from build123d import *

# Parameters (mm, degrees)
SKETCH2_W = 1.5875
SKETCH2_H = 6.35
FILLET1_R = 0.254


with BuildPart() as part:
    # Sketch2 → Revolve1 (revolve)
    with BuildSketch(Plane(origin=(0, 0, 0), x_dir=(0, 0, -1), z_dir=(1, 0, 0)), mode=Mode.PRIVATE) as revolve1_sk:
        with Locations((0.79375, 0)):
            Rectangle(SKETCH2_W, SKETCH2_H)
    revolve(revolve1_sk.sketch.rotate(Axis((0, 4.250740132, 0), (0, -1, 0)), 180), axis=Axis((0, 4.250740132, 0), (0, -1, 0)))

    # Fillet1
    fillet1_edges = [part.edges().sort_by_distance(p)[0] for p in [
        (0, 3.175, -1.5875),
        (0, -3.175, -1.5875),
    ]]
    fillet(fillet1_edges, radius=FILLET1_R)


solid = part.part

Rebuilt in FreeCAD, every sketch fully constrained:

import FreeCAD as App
import Part
import Sketcher
from FreeCAD import Vector
Q = App.Units.Quantity


def edges_at(feature, points):
    """Names of the edges that pass closest to the given points."""
    edges = feature.Shape.Edges
    near = lambda p: min(range(len(edges)), key=lambda i: edges[i].distToShape(Part.Vertex(*p))[0])
    return sorted({f"Edge{near(p) + 1}" for p in points})


def add_polygon(sketch, points):
    """Adds a closed chain of lines whose ends are joined by coincident constraints."""
    first, n = sketch.GeometryCount, len(points)
    for a, b in zip(points, points[1:] + points[:1]):
        sketch.addGeometry(Part.LineSegment(App.Vector(*a, 0), App.Vector(*b, 0)), False)
    for i in range(n):
        sketch.addConstraint(Sketcher.Constraint("Coincident", first + i, 2, first + (i + 1) % n, 1))

doc = App.newDocument("Part")
body = doc.addObject("PartDesign::Body", "Body")

# Sketch on YZ plane
sketch1 = doc.addObject("Sketcher::SketchObject", "Sketch")
body.addObject(sketch1)
sketch1.AttachmentSupport = (doc.YZ_Plane, [""])
sketch1.MapMode = "FlatFace"
add_polygon(sketch1, [(3.2, 0), (-3.2, 0), (-3.2, -1.6), (3.2, -1.6)])  # lines 0-3
sketch1.addConstraint(Sketcher.Constraint("Horizontal", 0))
sketch1.addConstraint(Sketcher.Constraint("Vertical", 1))
sketch1.addConstraint(Sketcher.Constraint("Horizontal", 2))
sketch1.addConstraint(Sketcher.Constraint("Vertical", 3))
sketch1.addConstraint(Sketcher.Constraint("Symmetric", 0, 2, 3, 2, -1, 1))
sketch1.addConstraint(Sketcher.Constraint("DistanceX", 0, 2, 0, 1, Q("0.25 in")))
sketch1.addConstraint(Sketcher.Constraint("DistanceY", 1, 2, 1, 1, Q("0.0625 in")))
revolution = doc.addObject("PartDesign::Revolution", "Revolution")
body.addObject(revolution)
revolution.Profile = sketch1
revolution.ReferenceAxis = (sketch1, ["H_Axis"])
revolution.Angle = 360
doc.recompute()

fillet = doc.addObject("PartDesign::Fillet", "Fillet")
body.addObject(fillet)
fillet.Base = (revolution, edges_at(revolution, [(0, 3.175, -1.587), (0, -3.175, -1.587)]))
fillet.Radius = Q("0.01 in")

doc.recompute()
